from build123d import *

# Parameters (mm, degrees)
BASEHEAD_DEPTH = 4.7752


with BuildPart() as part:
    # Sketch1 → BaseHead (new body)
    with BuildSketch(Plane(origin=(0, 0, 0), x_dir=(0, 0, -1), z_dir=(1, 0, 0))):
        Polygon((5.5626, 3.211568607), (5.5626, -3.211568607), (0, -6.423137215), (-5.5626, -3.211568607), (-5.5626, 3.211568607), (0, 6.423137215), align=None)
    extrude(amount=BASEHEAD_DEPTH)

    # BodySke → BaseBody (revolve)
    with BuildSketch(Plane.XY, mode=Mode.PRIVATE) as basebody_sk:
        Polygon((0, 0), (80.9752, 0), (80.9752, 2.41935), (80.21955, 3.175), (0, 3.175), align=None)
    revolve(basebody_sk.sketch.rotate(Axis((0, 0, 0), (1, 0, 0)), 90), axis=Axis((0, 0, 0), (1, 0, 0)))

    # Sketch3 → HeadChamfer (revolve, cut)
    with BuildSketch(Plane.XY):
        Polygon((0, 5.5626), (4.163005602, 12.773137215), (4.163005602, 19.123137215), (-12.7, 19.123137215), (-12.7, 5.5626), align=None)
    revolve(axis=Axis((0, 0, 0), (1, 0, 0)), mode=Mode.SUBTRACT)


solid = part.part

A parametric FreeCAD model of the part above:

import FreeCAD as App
import Part
import Sketcher

V = App.Vector
Q = App.Units.Quantity

doc = App.newDocument("Part")
body = doc.addObject("PartDesign::Body", "Body")

sketch1 = body.newObject("Sketcher::SketchObject", "Sketch")
sketch1.AttachmentSupport = (doc.getObject("YZ_Plane"), [""])
sketch1.MapMode = "FlatFace"
sketch1.addGeometry([
    Part.LineSegment(V(-3, -6, 0), V(3, -6, 0)),
    Part.LineSegment(V(3, -6, 0), V(6, 0, 0)),
    Part.LineSegment(V(6, 0, 0), V(3, 6, 0)),
    Part.LineSegment(V(3, 6, 0), V(-3, 6, 0)),
    Part.LineSegment(V(-3, 6, 0), V(-6, 0, 0)),
    Part.LineSegment(V(-6, 0, 0), V(-3, -6, 0)),
], False)
sketch1.addConstraint([
    Sketcher.Constraint("Coincident", 0, 2, 1, 1),
    Sketcher.Constraint("Coincident", 1, 2, 2, 1),
    Sketcher.Constraint("Coincident", 2, 2, 3, 1),
    Sketcher.Constraint("Coincident", 3, 2, 4, 1),
    Sketcher.Constraint("Coincident", 4, 2, 5, 1),
    Sketcher.Constraint("Coincident", 5, 2, 0, 1),
    Sketcher.Constraint("Horizontal", 0),
    Sketcher.Constraint("Horizontal", 3),
    Sketcher.Constraint("Symmetric", 0, 2, 3, 2, -1, 1),
    Sketcher.Constraint("Symmetric", 1, 2, 4, 2, -1, 1),
    Sketcher.Constraint("PointOnObject", 1, 2, -1),
    Sketcher.Constraint("Parallel", 2, 5),
    Sketcher.Constraint("Vertical", 0, 2, 2, 2),
    Sketcher.Constraint("Angle", 1, Q("60 deg")),
    Sketcher.Constraint("DistanceY", 0, 2, -1, 1, Q("0.219 in")),
    Sketcher.Constraint("DistanceX", 0, 1, 0, 2, Q("6.423137 mm")),
])
pad1 = body.newObject("PartDesign::Pad", "Pad")
pad1.Profile = sketch1
pad1.Length = Q("0.188 in")

sketch2 = body.newObject("Sketcher::SketchObject", "Sketch001")
sketch2.AttachmentSupport = (doc.getObject("XY_Plane"), [""])
sketch2.MapMode = "FlatFace"
sketch2.addGeometry([
    Part.LineSegment(V(0, 0, 0), V(81, 0, 0)),
    Part.LineSegment(V(81, 0, 0), V(81, 2.4, 0)),
    Part.LineSegment(V(81, 2.4, 0), V(80.2, 3.2, 0)),
    Part.LineSegment(V(80.2, 3.2, 0), V(0, 3.2, 0)),
    Part.LineSegment(V(0, 3.2, 0), V(0, 0, 0)),
], False)
sketch2.addConstraint([
    Sketcher.Constraint("Coincident", 0, 2, 1, 1),
    Sketcher.Constraint("Coincident", 1, 2, 2, 1),
    Sketcher.Constraint("Coincident", 2, 2, 3, 1),
    Sketcher.Constraint("Coincident", 3, 2, 4, 1),
    Sketcher.Constraint("Coincident", 4, 2, 0, 1),
    Sketcher.Constraint("Horizontal", 0),
    Sketcher.Constraint("Vertical", 1),
    Sketcher.Constraint("Horizontal", 3),
    Sketcher.Constraint("Vertical", 4),
    Sketcher.Constraint("Coincident", 4, 2, -1, 1),
    Sketcher.Constraint("Angle", 2, Q("135 deg")),
    Sketcher.Constraint("DistanceX", 0, 1, 0, 2, Q("3.188 in")),
    Sketcher.Constraint("DistanceY", 4, 2, 4, 1, Q("0.125 in")),
    Sketcher.Constraint("DistanceX", 3, 2, 3, 1, Q("80.21955 mm")),
])
revolution = body.newObject("PartDesign::Revolution", "Revolution")
revolution.Profile = sketch2
revolution.ReferenceAxis = (sketch2, ["H_Axis"])
revolution.Angle = 360

sketch3 = body.newObject("Sketcher::SketchObject", "Sketch002")
sketch3.AttachmentSupport = (doc.getObject("XY_Plane"), [""])
sketch3.MapMode = "FlatFace"
sketch3.addGeometry([
    Part.LineSegment(V(0, 6, 0), V(4, 13, 0)),
    Part.LineSegment(V(4, 13, 0), V(4, 19, 0)),
    Part.LineSegment(V(4, 19, 0), V(-13, 19, 0)),
    Part.LineSegment(V(-13, 19, 0), V(-13, 6, 0)),
    Part.LineSegment(V(-13, 6, 0), V(0, 6, 0)),
], False)
sketch3.addConstraint([
    Sketcher.Constraint("Coincident", 0, 2, 1, 1),
    Sketcher.Constraint("Coincident", 1, 2, 2, 1),
    Sketcher.Constraint("Coincident", 2, 2, 3, 1),
    Sketcher.Constraint("Coincident", 3, 2, 4, 1),
    Sketcher.Constraint("Coincident", 4, 2, 0, 1),
    Sketcher.Constraint("Vertical", 1),
    Sketcher.Constraint("Horizontal", 2),
    Sketcher.Constraint("Vertical", 3),
    Sketcher.Constraint("Horizontal", 4),
    Sketcher.Constraint("PointOnObject", 4, 2, -2),
    Sketcher.Constraint("DistanceX", 4, 1, 4, 2, Q("0.5 in")),
    Sketcher.Constraint("Angle", 0, Q("60 deg")),
    Sketcher.Constraint("DistanceY", 1, 1, 1, 2, Q("0.25 in")),
    Sketcher.Constraint("DistanceY", -1, 1, 3, 2, Q("0.219 in")),
    Sketcher.Constraint("Distance", 0, Q("8.326011 mm")),
])
groove = body.newObject("PartDesign::Groove", "Groove")
groove.Profile = sketch3
groove.ReferenceAxis = (sketch3, ["H_Axis"])
groove.Angle = 360

doc.recompute()
